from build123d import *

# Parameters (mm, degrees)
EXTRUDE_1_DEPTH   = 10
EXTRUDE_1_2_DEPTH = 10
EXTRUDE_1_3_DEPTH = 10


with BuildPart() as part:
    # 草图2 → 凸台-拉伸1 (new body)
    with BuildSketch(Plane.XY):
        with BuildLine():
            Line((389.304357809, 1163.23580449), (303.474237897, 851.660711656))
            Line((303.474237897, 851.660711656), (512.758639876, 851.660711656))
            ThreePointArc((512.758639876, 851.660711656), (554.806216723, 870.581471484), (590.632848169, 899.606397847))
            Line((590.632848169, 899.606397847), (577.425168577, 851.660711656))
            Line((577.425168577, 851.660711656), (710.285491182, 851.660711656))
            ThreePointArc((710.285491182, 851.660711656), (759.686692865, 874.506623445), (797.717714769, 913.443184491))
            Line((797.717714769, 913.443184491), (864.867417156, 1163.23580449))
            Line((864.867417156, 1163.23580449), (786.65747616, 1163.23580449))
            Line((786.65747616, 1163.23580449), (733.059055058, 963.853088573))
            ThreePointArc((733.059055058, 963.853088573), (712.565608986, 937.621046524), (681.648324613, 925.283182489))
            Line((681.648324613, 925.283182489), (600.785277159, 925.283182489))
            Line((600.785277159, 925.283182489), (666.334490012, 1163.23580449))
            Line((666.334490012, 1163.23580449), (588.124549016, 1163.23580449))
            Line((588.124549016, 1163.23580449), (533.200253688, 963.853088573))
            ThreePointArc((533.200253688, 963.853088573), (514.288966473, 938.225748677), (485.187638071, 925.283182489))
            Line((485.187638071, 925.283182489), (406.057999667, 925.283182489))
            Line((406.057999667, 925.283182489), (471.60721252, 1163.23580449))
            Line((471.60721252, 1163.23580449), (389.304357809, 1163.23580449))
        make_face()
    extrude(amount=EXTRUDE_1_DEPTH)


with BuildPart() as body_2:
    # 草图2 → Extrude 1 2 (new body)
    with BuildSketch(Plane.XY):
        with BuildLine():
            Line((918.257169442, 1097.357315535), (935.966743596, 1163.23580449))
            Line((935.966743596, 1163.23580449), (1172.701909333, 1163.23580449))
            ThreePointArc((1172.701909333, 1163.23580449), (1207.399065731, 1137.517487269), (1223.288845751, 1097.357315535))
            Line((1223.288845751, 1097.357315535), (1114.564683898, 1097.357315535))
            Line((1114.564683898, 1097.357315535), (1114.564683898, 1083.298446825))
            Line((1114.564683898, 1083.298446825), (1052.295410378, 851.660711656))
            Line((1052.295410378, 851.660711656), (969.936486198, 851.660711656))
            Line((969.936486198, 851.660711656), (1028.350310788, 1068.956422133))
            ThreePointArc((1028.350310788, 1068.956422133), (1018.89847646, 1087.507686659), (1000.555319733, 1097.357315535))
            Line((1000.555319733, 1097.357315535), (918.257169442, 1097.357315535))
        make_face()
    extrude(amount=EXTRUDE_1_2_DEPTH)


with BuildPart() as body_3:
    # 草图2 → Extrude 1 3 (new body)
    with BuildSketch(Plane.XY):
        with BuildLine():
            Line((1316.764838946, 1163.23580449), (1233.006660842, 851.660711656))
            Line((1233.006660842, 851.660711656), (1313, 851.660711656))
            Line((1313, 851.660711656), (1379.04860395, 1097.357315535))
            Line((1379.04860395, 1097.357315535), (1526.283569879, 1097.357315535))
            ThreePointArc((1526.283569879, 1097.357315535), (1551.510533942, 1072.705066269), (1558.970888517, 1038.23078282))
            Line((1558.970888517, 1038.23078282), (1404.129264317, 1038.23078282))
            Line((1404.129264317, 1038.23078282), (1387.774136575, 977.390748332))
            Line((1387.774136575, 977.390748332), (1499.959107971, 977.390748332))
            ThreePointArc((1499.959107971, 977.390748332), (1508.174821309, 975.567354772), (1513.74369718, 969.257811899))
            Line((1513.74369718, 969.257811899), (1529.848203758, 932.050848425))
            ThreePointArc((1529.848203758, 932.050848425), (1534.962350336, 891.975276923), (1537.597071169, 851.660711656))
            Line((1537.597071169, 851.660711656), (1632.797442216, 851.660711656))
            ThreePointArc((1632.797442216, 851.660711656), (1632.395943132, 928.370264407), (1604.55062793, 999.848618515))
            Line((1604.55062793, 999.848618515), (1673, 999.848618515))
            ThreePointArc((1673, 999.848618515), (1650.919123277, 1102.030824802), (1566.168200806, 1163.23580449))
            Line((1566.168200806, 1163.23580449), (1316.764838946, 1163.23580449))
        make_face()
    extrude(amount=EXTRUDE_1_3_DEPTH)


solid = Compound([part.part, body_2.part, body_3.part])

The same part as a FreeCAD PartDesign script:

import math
import FreeCAD as App
import Part
import Sketcher
from FreeCAD import Vector
Q = App.Units.Quantity

doc = App.newDocument("Part")
params = doc.addObject("Spreadsheet::Sheet", "Params")
for row, (alias, value) in enumerate([
    ("pad1_length", "10 mm"),
    ("pad2_length", "10 mm"),
    ("sketch3_length", "63 mm"),
    ("pad3_length", "10 mm"),
], start=1):
    params.set(f"A{row}", alias)
    params.set(f"B{row}", "=" + value)
    params.setAlias(f"B{row}", alias)

body = doc.addObject("PartDesign::Body", "Body")

# Sketch on XY plane
sketch1 = body.newObject("Sketcher::SketchObject", "Sketch")
sketch1.AttachmentSupport = (doc.getObject("XY_Plane"), [""])
sketch1.MapMode = "FlatFace"
sketch1.addGeometry(Part.LineSegment(Vector(389.304358, 1163.235804, 0), Vector(303.474238, 851.660712, 0)), False)
sketch1.addGeometry(Part.LineSegment(Vector(303.474238, 851.660712, 0), Vector(512.75864, 851.660712, 0)), False)
sketch1.addGeometry(Part.ArcOfCircle(Part.Circle(Vector(460.869972, 1023.154335, 0), Vector(0, 0, 1), 179.171696), math.radians(-73.165808), math.radians(-43.59454)), False)
sketch1.addGeometry(Part.LineSegment(Vector(590.632848, 899.606398, 0), Vector(577.425169, 851.660712, 0)), False)
sketch1.addGeometry(Part.LineSegment(Vector(577.425169, 851.660712, 0), Vector(710.285491, 851.660712, 0)), False)
sketch1.addGeometry(Part.ArcOfCircle(Part.Circle(Vector(672.916848, 997.300033, 0), Vector(0, 0, 1), 150.357), math.radians(-75.609293), math.radians(-33.898148)), False)
sketch1.addGeometry(Part.LineSegment(Vector(797.717715, 913.443184, 0), Vector(864.867417, 1163.235804, 0)), False)
sketch1.addGeometry(Part.LineSegment(Vector(864.867417, 1163.235804, 0), Vector(786.657476, 1163.235804, 0)), False)
sketch1.addGeometry(Part.LineSegment(Vector(786.657476, 1163.235804, 0), Vector(733.059055, 963.853089, 0)), False)
sketch1.addGeometry(Part.ArcOfCircle(Part.Circle(Vector(674.28091, 988.651618, 0), Vector(0, 0, 1), 63.795278), math.radians(-83.368384), math.radians(-22.874906)), False)
sketch1.addGeometry(Part.LineSegment(Vector(681.648325, 925.283182, 0), Vector(600.785277, 925.283182, 0)), False)
sketch1.addGeometry(Part.LineSegment(Vector(600.785277, 925.283182, 0), Vector(666.33449, 1163.235804, 0)), False)
sketch1.addGeometry(Part.LineSegment(Vector(666.33449, 1163.235804, 0), Vector(588.124549, 1163.235804, 0)), False)
sketch1.addGeometry(Part.LineSegment(Vector(588.124549, 1163.235804, 0), Vector(533.200254, 963.853089, 0)), False)
sketch1.addGeometry(Part.ArcOfCircle(Part.Circle(Vector(475.244115, 986.829587, 0), Vector(0, 0, 1), 62.344475), math.radians(-80.822516), math.radians(-21.625668)), False)
sketch1.addGeometry(Part.LineSegment(Vector(485.187638, 925.283182, 0), Vector(406.058, 925.283182, 0)), False)
sketch1.addGeometry(Part.LineSegment(Vector(406.058, 925.283182, 0), Vector(471.607213, 1163.235804, 0)), False)
sketch1.addGeometry(Part.LineSegment(Vector(471.607213, 1163.235804, 0), Vector(389.304358, 1163.235804, 0)), False)
sketch1.addConstraint(Sketcher.Constraint("Coincident", 0, 2, 1, 1))
sketch1.addConstraint(Sketcher.Constraint("Coincident", 1, 2, 2, 1))
sketch1.addConstraint(Sketcher.Constraint("Coincident", 2, 2, 3, 1))
sketch1.addConstraint(Sketcher.Constraint("Coincident", 3, 2, 4, 1))
sketch1.addConstraint(Sketcher.Constraint("Coincident", 4, 2, 5, 1))
sketch1.addConstraint(Sketcher.Constraint("Coincident", 5, 2, 6, 1))
sketch1.addConstraint(Sketcher.Constraint("Coincident", 6, 2, 7, 1))
sketch1.addConstraint(Sketcher.Constraint("Coincident", 7, 2, 8, 1))
sketch1.addConstraint(Sketcher.Constraint("Coincident", 8, 2, 9, 2))
sketch1.addConstraint(Sketcher.Constraint("Coincident", 9, 1, 10, 1))
sketch1.addConstraint(Sketcher.Constraint("Coincident", 10, 2, 11, 1))
sketch1.addConstraint(Sketcher.Constraint("Coincident", 11, 2, 12, 1))
sketch1.addConstraint(Sketcher.Constraint("Coincident", 12, 2, 13, 1))
sketch1.addConstraint(Sketcher.Constraint("Coincident", 13, 2, 14, 2))
sketch1.addConstraint(Sketcher.Constraint("Coincident", 14, 1, 15, 1))
sketch1.addConstraint(Sketcher.Constraint("Coincident", 15, 2, 16, 1))
sketch1.addConstraint(Sketcher.Constraint("Coincident", 16, 2, 17, 1))
sketch1.addConstraint(Sketcher.Constraint("Coincident", 17, 2, 0, 1))
sketch1.addConstraint(Sketcher.Constraint("Horizontal", 1))
sketch1.addConstraint(Sketcher.Constraint("Horizontal", 4))
sketch1.addConstraint(Sketcher.Constraint("Horizontal", 7))
sketch1.addConstraint(Sketcher.Constraint("Horizontal", 10))
sketch1.addConstraint(Sketcher.Constraint("Horizontal", 12))
sketch1.addConstraint(Sketcher.Constraint("Horizontal", 15))
sketch1.addConstraint(Sketcher.Constraint("Horizontal", 17))
sketch1.addConstraint(Sketcher.Constraint("Parallel", 0, 3))
sketch1.addConstraint(Sketcher.Constraint("Parallel", 6, 8))
sketch1.addConstraint(Sketcher.Constraint("Parallel", 3, 11))
sketch1.addConstraint(Sketcher.Constraint("Parallel", 11, 13))
sketch1.addConstraint(Sketcher.Constraint("Parallel", 13, 16))
sketch1.addConstraint(Sketcher.Constraint("Horizontal", 1, 2, 3, 2))
sketch1.addConstraint(Sketcher.Constraint("Horizontal", 7, 2, 11, 2))
sketch1.addConstraint(Sketcher.Constraint("Horizontal", 8, 2, 13, 2))
sketch1.addConstraint(Sketcher.Constraint("Horizontal", 10, 2, 14, 1))
sketch1.addConstraint(Sketcher.Constraint("Horizontal", 12, 2, 16, 2))
sketch1.addConstraint(Sketcher.Constraint("Equal", 7, 12))
sketch1.addConstraint(Sketcher.Constraint("Radius", 5, Q("150.357 mm")))
sketch1.addConstraint(Sketcher.Constraint("DistanceX", 1, 1, 1, 2, Q("209.284402 mm")))
sketch1.addConstraint(Sketcher.Constraint("DistanceX", -1, 1, 15, 2, Q("406.058 mm")))
sketch1.addConstraint(Sketcher.Constraint("Radius", 2, Q("179.171696 mm")))
sketch1.addConstraint(Sketcher.Constraint("Radius", 9, Q("63.795278 mm")))
sketch1.addConstraint(Sketcher.Constraint("Radius", 14, Q("62.344475 mm")))
sketch1.addConstraint(Sketcher.Constraint("DistanceX", 2, 2, 5, 3, Q("82.284 mm")))
sketch1.addConstraint(Sketcher.Constraint("DistanceX", 14, 1, 1, 2, Q("27.571002 mm")))
sketch1.addConstraint(Sketcher.Constraint("DistanceX", 7, 2, 7, 1, Q("78.209941 mm")))
sketch1.addConstraint(Sketcher.Constraint("DistanceX", 15, 2, 15, 1, Q("79.129638 mm")))
sketch1.addConstraint(Sketcher.Constraint("DistanceX", 12, 2, 5, 3, Q("84.792299 mm")))
sketch1.addConstraint(Sketcher.Constraint("DistanceY", 13, 2, 14, 3, Q("22.976498 mm")))
sketch1.addConstraint(Sketcher.Constraint("Distance", 0, Q("323.180829 mm")))
sketch1.addConstraint(Sketcher.Constraint("Distance", 6, Q("258.66085 mm")))
sketch1.addConstraint(Sketcher.Constraint("DistanceX", 4, 1, 4, 2, Q("132.860323 mm")))
sketch1.addConstraint(Sketcher.Constraint("DistanceX", 10, 2, 10, 1, Q("80.863047 mm")))
sketch1.addConstraint(Sketcher.Constraint("DistanceX", 17, 2, 17, 1, Q("82.302855 mm")))
sketch1.addConstraint(Sketcher.Constraint("DistanceX", -1, 1, 5, 3, Q("672.916848 mm")))
sketch1.addConstraint(Sketcher.Constraint("DistanceX", -1, 1, 9, 3, Q("674.28091 mm")))
sketch1.addConstraint(Sketcher.Constraint("DistanceY", -1, 1, 9, 3, Q("988.651618 mm")))
sketch1.addConstraint(Sketcher.Constraint("DistanceY", -1, 1, 0, 2, Q("851.660712 mm")))
sketch1.addConstraint(Sketcher.Constraint("DistanceX", -1, 1, 3, 2, Q("577.425169 mm")))
pad1 = body.newObject("PartDesign::Pad", "Pad")
pad1.Profile = sketch1
pad1.setExpression("Length", "Params.pad1_length")
body2 = doc.addObject("PartDesign::Body", "Body001")

# Sketch on XY plane
sketch2 = body2.newObject("Sketcher::SketchObject", "Sketch001")
sketch2.AttachmentSupport = (doc.getObject("XY_Plane001"), [""])
sketch2.MapMode = "FlatFace"
sketch2.addGeometry(Part.LineSegment(Vector(935.966744, 1163.235804, 0), Vector(918.257169, 1097.357316, 0)), False)
sketch2.addGeometry(Part.LineSegment(Vector(918.257169, 1097.357316, 0), Vector(1000.55532, 1097.357316, 0)), False)
sketch2.addGeometry(Part.ArcOfCircle(Part.Circle(Vector(993.995928, 1063.136407, 0), Vector(0, 0, 1), 34.843884), math.radians(9.615251), math.radians(79.149274)), False)
sketch2.addGeometry(Part.LineSegment(Vector(1028.350311, 1068.956422, 0), Vector(969.936486, 851.660712, 0)), False)
sketch2.addGeometry(Part.LineSegment(Vector(969.936486, 851.660712, 0), Vector(1052.29541, 851.660712, 0)), False)
sketch2.addGeometry(Part.LineSegment(Vector(1052.29541, 851.660712, 0), Vector(1114.564684, 1083.298447, 0)), False)
sketch2.addGeometry(Part.LineSegment(Vector(1114.564684, 1083.298447, 0), Vector(1114.564684, 1097.357316, 0)), False)
sketch2.addGeometry(Part.LineSegment(Vector(1114.564684, 1097.357316, 0), Vector(1223.288846, 1097.357316, 0)), False)
sketch2.addGeometry(Part.ArcOfCircle(Part.Circle(Vector(1145.007419, 1089.608036, 0), Vector(0, 0, 1), 78.664052), math.radians(5.653437), math.radians(69.386616)), False)
sketch2.addGeometry(Part.LineSegment(Vector(1172.701909, 1163.235804, 0), Vector(935.966744, 1163.235804, 0)), False)
sketch2.addConstraint(Sketcher.Constraint("Coincident", 0, 2, 1, 1))
sketch2.addConstraint(Sketcher.Constraint("Coincident", 1, 2, 2, 2))
sketch2.addConstraint(Sketcher.Constraint("Coincident", 2, 1, 3, 1))
sketch2.addConstraint(Sketcher.Constraint("Coincident", 3, 2, 4, 1))
sketch2.addConstraint(Sketcher.Constraint("Coincident", 4, 2, 5, 1))
sketch2.addConstraint(Sketcher.Constraint("Coincident", 5, 2, 6, 1))
sketch2.addConstraint(Sketcher.Constraint("Coincident", 6, 2, 7, 1))
sketch2.addConstraint(Sketcher.Constraint("Coincident", 7, 2, 8, 1))
sketch2.addConstraint(Sketcher.Constraint("Coincident", 8, 2, 9, 1))
sketch2.addConstraint(Sketcher.Constraint("Coincident", 9, 2, 0, 1))
sketch2.addConstraint(Sketcher.Constraint("Horizontal", 1))
sketch2.addConstraint(Sketcher.Constraint("Horizontal", 4))
sketch2.addConstraint(Sketcher.Constraint("Vertical", 6))
sketch2.addConstraint(Sketcher.Constraint("Horizontal", 7))
sketch2.addConstraint(Sketcher.Constraint("Horizontal", 9))
sketch2.addConstraint(Sketcher.Constraint("Parallel", 0, 3))
sketch2.addConstraint(Sketcher.Constraint("Parallel", 3, 5))
sketch2.addConstraint(Sketcher.Constraint("Horizontal", 1, 2, 6, 2))
sketch2.addConstraint(Sketcher.Constraint("Radius", 8, Q("78.664052 mm")))
sketch2.addConstraint(Sketcher.Constraint("Radius", 2, Q("34.843884 mm")))
sketch2.addConstraint(Sketcher.Constraint("DistanceX", 1, 1, 1, 2, Q("82.29815 mm")))
sketch2.addConstraint(Sketcher.Constraint("DistanceX", 7, 1, 7, 2, Q("108.724162 mm")))
sketch2.addConstraint(Sketcher.Constraint("DistanceY", 6, 1, 6, 2, Q("14.058869 mm")))
sketch2.addConstraint(Sketcher.Constraint("DistanceX", 1, 2, 8, 3, Q("144.4521 mm")))
sketch2.addConstraint(Sketcher.Constraint("DistanceX", 2, 1, 4, 2, Q("23.9451 mm")))
sketch2.addConstraint(Sketcher.Constraint("DistanceX", 2, 1, 8, 2, Q("144.351599 mm")))
sketch2.addConstraint(Sketcher.Constraint("Distance", 0, Q("68.217332 mm")))
sketch2.addConstraint(Sketcher.Constraint("DistanceX", 4, 1, 4, 2, Q("82.358924 mm")))
sketch2.addConstraint(Sketcher.Constraint("DistanceX", 9, 2, 9, 1, Q("236.735166 mm")))
sketch2.addConstraint(Sketcher.Constraint("DistanceX", -1, 1, 8, 3, Q("1145.007419 mm")))
sketch2.addConstraint(Sketcher.Constraint("DistanceX", -1, 1, 2, 1, Q("1028.350311 mm")))
sketch2.addConstraint(Sketcher.Constraint("DistanceY", -1, 1, 3, 2, Q("851.660712 mm")))
pad2 = body2.newObject("PartDesign::Pad", "Pad001")
pad2.Profile = sketch2
pad2.setExpression("Length", "Params.pad2_length")
body3 = doc.addObject("PartDesign::Body", "Body002")

# Sketch on XY plane
sketch3 = body3.newObject("Sketcher::SketchObject", "Sketch002")
sketch3.AttachmentSupport = (doc.getObject("XY_Plane002"), [""])
sketch3.MapMode = "FlatFace"
sketch3.addGeometry(Part.LineSegment(Vector(1316.764839, 1163.235804, 0), Vector(1233.006661, 851.660712, 0)), False)
sketch3.addGeometry(Part.LineSegment(Vector(1233.006661, 851.660712, 0), Vector(1313, 851.660712, 0)), False)
sketch3.addGeometry(Part.LineSegment(Vector(1313, 851.660712, 0), Vector(1379.048604, 1097.357316, 0)), False)
sketch3.addGeometry(Part.LineSegment(Vector(1379.048604, 1097.357316, 0), Vector(1526.28357, 1097.357316, 0)), False)
sketch3.addGeometry(Part.ArcOfCircle(Part.Circle(Vector(1497.876225, 1043.054051, 0), Vector(0, 0, 1), 61.28476), math.radians(-4.513993), math.radians(62.384851)), False)
sketch3.addGeometry(Part.LineSegment(Vector(1558.970889, 1038.230783, 0), Vector(1404.129264, 1038.230783, 0)), False)
sketch3.addGeometry(Part.LineSegment(Vector(1404.129264, 1038.230783, 0), Vector(1387.774137, 977.390748, 0)), False)
sketch3.addGeometry(Part.LineSegment(Vector(1387.774137, 977.390748, 0), Vector(1499.959108, 977.390748, 0)), False)
sketch3.addGeometry(Part.ArcOfCircle(Part.Circle(Vector(1501.265594, 963.856842, 0), Vector(0, 0, 1), 13.59682), math.radians(23.40469), math.radians(95.513923)), False)
sketch3.addGeometry(Part.LineSegment(Vector(1513.743697, 969.257812, 0), Vector(1529.848204, 932.050848, 0)), False)
sketch3.addGeometry(Part.ArcOfCircle(Part.Circle(Vector(882.722446, 829.105368, 0), Vector(0, 0, 1), 655.262938), math.radians(1.972615), math.radians(9.038935)), False)
sketch3.addGeometry(Part.LineSegment(Vector(1537.597071, 851.660712, 0), Vector(1632.797442, 851.660712, 0)), False)
sketch3.addGeometry(Part.ArcOfCircle(Part.Circle(Vector(1425.493059, 888.931504, 0), Vector(0, 0, 1), 210.628154), math.radians(-10.192195), math.radians(31.776122)), False)
sketch3.addGeometry(Part.LineSegment(Vector(1604.550628, 999.848619, 0), Vector(1673, 999.848619, 0)), False)
sketch3.addGeometry(Part.ArcOfCircle(Part.Circle(Vector(1528.759857, 1022.156175, 0), Vector(0, 0, 1), 145.954945), math.radians(-8.791467), math.radians(75.149333)), False)
sketch3.addGeometry(Part.LineSegment(Vector(1566.168201, 1163.235804, 0), Vector(1316.764839, 1163.235804, 0)), False)
sketch3.addConstraint(Sketcher.Constraint("Coincident", 0, 2, 1, 1))
sketch3.addConstraint(Sketcher.Constraint("Coincident", 1, 2, 2, 1))
sketch3.addConstraint(Sketcher.Constraint("Coincident", 2, 2, 3, 1))
sketch3.addConstraint(Sketcher.Constraint("Coincident", 3, 2, 4, 2))
sketch3.addConstraint(Sketcher.Constraint("Coincident", 4, 1, 5, 1))
sketch3.addConstraint(Sketcher.Constraint("Coincident", 5, 2, 6, 1))
sketch3.addConstraint(Sketcher.Constraint("Coincident", 6, 2, 7, 1))
sketch3.addConstraint(Sketcher.Constraint("Coincident", 7, 2, 8, 2))
sketch3.addConstraint(Sketcher.Constraint("Tangent", 8, 1, 9, 1))
sketch3.addConstraint(Sketcher.Constraint("Coincident", 9, 2, 10, 2))
sketch3.addConstraint(Sketcher.Constraint("Coincident", 10, 1, 11, 1))
sketch3.addConstraint(Sketcher.Constraint("Coincident", 11, 2, 12, 1))
sketch3.addConstraint(Sketcher.Constraint("Coincident", 12, 2, 13, 1))
sketch3.addConstraint(Sketcher.Constraint("Coincident", 13, 2, 14, 1))
sketch3.addConstraint(Sketcher.Constraint("Coincident", 14, 2, 15, 1))
sketch3.addConstraint(Sketcher.Constraint("Coincident", 15, 2, 0, 1))
sketch3.addConstraint(Sketcher.Constraint("Horizontal", 1))
sketch3.addConstraint(Sketcher.Constraint("Horizontal", 3))
sketch3.addConstraint(Sketcher.Constraint("Horizontal", 5))
sketch3.addConstraint(Sketcher.Constraint("Horizontal", 7))
sketch3.addConstraint(Sketcher.Constraint("Horizontal", 11))
sketch3.addConstraint(Sketcher.Constraint("Horizontal", 13))
sketch3.addConstraint(Sketcher.Constraint("Horizontal", 15))
sketch3.addConstraint(Sketcher.Constraint("Parallel", 0, 2))
sketch3.addConstraint(Sketcher.Constraint("Parallel", 2, 6))
sketch3.addConstraint(Sketcher.Constraint("Distance", 6, Q("63 mm")))
sketch3.addConstraint(Sketcher.Constraint("DistanceX", -1, 1, 1, 2, Q("1313 mm")))
sketch3.addConstraint(Sketcher.Constraint("DistanceX", -1, 1, 13, 2, Q("1673 mm")))
sketch3.addConstraint(Sketcher.Constraint("Radius", 4, Q("61.28476 mm")))
sketch3.addConstraint(Sketcher.Constraint("Radius", 8, Q("13.59682 mm")))
sketch3.addConstraint(Sketcher.Constraint("Radius", 10, Q("655.262938 mm")))
sketch3.addConstraint(Sketcher.Constraint("Radius", 12, Q("210.628154 mm")))
sketch3.addConstraint(Sketcher.Constraint("Radius", 14, Q("145.954945 mm")))
sketch3.addConstraint(Sketcher.Constraint("DistanceX", 1, 1, 1, 2, Q("79.993339 mm")))
sketch3.addConstraint(Sketcher.Constraint("DistanceX", 7, 1, 7, 2, Q("112.184971 mm")))
sketch3.addConstraint(Sketcher.Constraint("DistanceX", 11, 1, 11, 2, Q("95.200371 mm")))
sketch3.addConstraint(Sketcher.Constraint("DistanceX", 15, 2, 15, 1, Q("249.403362 mm")))
sketch3.addConstraint(Sketcher.Constraint("DistanceX", -1, 1, 14, 2, Q("1566.168201 mm")))
sketch3.addConstraint(Sketcher.Constraint("DistanceX", 0, 2, 12, 3, Q("192.486399 mm")))
sketch3.addConstraint(Sketcher.Constraint("DistanceY", 9, 2, 7, 2, Q("45.3399 mm")))
sketch3.addConstraint(Sketcher.Constraint("DistanceY", 11, 2, 8, 1, Q("117.5971 mm")))
sketch3.addConstraint(Sketcher.Constraint("DistanceX", 3, 1, 3, 2, Q("147.234966 mm")))
sketch3.addConstraint(Sketcher.Constraint("DistanceX", 5, 2, 5, 1, Q("154.841624 mm")))
sketch3.addConstraint(Sketcher.Constraint("DistanceX", 13, 1, 13, 2, Q("68.449372 mm")))
sketch3.addConstraint(Sketcher.Constraint("DistanceY", -1, 1, 4, 3, Q("1043.054051 mm")))
sketch3.addConstraint(Sketcher.Constraint("DistanceY", -1, 1, 8, 3, Q("963.856842 mm")))
sketch3.addConstraint(Sketcher.Constraint("DistanceY", -1, 1, 10, 3, Q("829.105368 mm")))
sketch3.addConstraint(Sketcher.Constraint("DistanceY", -1, 1, 0, 2, Q("851.660712 mm")))
sketch3.addConstraint(Sketcher.Constraint("DistanceX", -1, 1, 3, 2, Q("1526.28357 mm")))
sketch3.addConstraint(Sketcher.Constraint("DistanceX", -1, 1, 4, 1, Q("1558.970889 mm")))
sketch3.addConstraint(Sketcher.Constraint("DistanceY", -1, 1, 6, 2, Q("977.390748 mm")))
sketch3.addConstraint(Sketcher.Constraint("DistanceY", -1, 1, 8, 1, Q("969.257812 mm")))
sketch3.setExpression("Constraints[25]", "Params.sketch3_length")
pad3 = body3.newObject("PartDesign::Pad", "Pad002")
pad3.Profile = sketch3
pad3.setExpression("Length", "Params.pad3_length")

doc.recompute()
